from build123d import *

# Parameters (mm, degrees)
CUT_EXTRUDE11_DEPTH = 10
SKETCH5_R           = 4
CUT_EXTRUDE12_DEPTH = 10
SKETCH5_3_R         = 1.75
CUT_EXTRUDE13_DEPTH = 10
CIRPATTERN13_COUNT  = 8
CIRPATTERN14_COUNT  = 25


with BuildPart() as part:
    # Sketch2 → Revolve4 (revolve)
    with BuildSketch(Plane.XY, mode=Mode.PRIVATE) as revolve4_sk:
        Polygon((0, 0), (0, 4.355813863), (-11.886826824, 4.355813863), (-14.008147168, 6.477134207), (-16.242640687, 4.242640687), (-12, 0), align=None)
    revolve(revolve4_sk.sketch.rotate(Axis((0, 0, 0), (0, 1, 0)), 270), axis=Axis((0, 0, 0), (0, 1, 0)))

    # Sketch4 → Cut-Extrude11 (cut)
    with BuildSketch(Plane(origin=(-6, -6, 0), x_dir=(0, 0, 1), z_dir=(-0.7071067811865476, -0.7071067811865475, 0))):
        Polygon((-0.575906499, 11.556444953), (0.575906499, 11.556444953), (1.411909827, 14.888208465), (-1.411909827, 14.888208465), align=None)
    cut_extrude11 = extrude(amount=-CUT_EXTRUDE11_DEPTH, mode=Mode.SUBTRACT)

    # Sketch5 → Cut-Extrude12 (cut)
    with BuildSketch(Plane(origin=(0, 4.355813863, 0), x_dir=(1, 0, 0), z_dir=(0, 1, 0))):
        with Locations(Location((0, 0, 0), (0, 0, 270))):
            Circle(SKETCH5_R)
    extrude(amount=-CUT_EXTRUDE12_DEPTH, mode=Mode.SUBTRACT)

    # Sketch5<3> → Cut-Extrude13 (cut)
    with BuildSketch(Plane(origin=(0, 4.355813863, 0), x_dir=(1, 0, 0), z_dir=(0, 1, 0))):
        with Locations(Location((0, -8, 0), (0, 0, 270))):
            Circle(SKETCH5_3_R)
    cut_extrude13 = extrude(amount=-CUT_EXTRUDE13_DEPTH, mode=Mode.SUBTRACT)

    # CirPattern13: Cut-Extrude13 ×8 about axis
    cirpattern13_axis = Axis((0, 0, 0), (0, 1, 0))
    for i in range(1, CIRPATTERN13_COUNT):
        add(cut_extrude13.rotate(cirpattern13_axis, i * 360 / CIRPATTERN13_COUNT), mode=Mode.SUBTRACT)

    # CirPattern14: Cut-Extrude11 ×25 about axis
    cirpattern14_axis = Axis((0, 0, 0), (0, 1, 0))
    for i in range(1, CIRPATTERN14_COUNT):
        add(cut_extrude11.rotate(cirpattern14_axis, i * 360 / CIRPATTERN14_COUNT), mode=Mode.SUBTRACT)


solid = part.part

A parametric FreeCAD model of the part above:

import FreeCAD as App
import Part
import Sketcher
from FreeCAD import Vector
Q = App.Units.Quantity

doc = App.newDocument("Part")
params = doc.addObject("Spreadsheet::Sheet", "Params")
for row, (alias, value) in enumerate([
    ("sketch1_width", "12 mm"),
    ("sketch1_length", "3 mm"),
    ("sketch1_length2", "6 mm"),
    ("revolution_angle", "360 deg"),
    ("pocket1_length", "10 mm"),
    ("sketch3_diameter", "8 mm"),
    ("pocket2_length", "10 mm"),
    ("sketch4_diameter", "3.5 mm"),
    ("pocket3_length", "10 mm"),
], start=1):
    params.set(f"A{row}", alias)
    params.set(f"B{row}", "=" + value)
    params.setAlias(f"B{row}", alias)

body = doc.addObject("PartDesign::Body", "Body")

# Sketch on XY plane
sketch1 = doc.addObject("Sketcher::SketchObject", "Sketch")
body.addObject(sketch1)
sketch1.AttachmentSupport = (doc.XY_Plane, [""])
sketch1.MapMode = "FlatFace"
sketch1.addGeometry([
    Part.LineSegment(Vector(0, 0, 0), Vector(0, 4.4, 0)),  # 0
    Part.LineSegment(Vector(0, 4.4, 0), Vector(-11.9, 4.4, 0)),  # 1
    Part.LineSegment(Vector(-11.9, 4.4, 0), Vector(-14, 6.5, 0)),  # 2
    Part.LineSegment(Vector(-14, 6.5, 0), Vector(-16.2, 4.2, 0)),  # 3
    Part.LineSegment(Vector(-16.2, 4.2, 0), Vector(-12, 0, 0)),  # 4
    Part.LineSegment(Vector(-12, 0, 0), Vector(0, 0, 0)),  # 5
], False)
sketch1.addConstraint([
    Sketcher.Constraint("Coincident", 0, 2, 1, 1),
    Sketcher.Constraint("Coincident", 1, 2, 2, 1),
    Sketcher.Constraint("Coincident", 2, 2, 3, 1),
    Sketcher.Constraint("Coincident", 3, 2, 4, 1),
    Sketcher.Constraint("Coincident", 4, 2, 5, 1),
    Sketcher.Constraint("Coincident", 5, 2, 0, 1),
    Sketcher.Constraint("Vertical", 0),
    Sketcher.Constraint("Horizontal", 1),
    Sketcher.Constraint("Horizontal", 5),
    Sketcher.Constraint("Coincident", 5, 2, -1, 1),
    Sketcher.Constraint("Perpendicular", 2, 3),
    Sketcher.Constraint("Perpendicular", 3, 4),
    Sketcher.Constraint("DistanceX", 5, 1, 5, 2, 12.0),
    Sketcher.Constraint("Angle", 2, Q("135 deg")),
    Sketcher.Constraint("Distance", 2, 3.0),
    Sketcher.Constraint("Distance", 4, 6.0),
    Sketcher.Constraint("Distance", 3, 3.160051),
])
sketch1.setExpression("Constraints[12]", "Params.sketch1_width")
sketch1.setExpression("Constraints[14]", "Params.sketch1_length")
sketch1.setExpression("Constraints[15]", "Params.sketch1_length2")
revolution = doc.addObject("PartDesign::Revolution", "Revolution")
body.addObject(revolution)
revolution.Profile = sketch1
revolution.ReferenceAxis = (sketch1, ["V_Axis"])
revolution.setExpression("Angle", "Params.revolution_angle")

# Sketch on an angled plane
sketch2 = doc.addObject("Sketcher::SketchObject", "Sketch001")
body.addObject(sketch2)
sketch2.Placement = App.Placement(Vector(-6, -6, 0), App.Rotation(Vector(0, 0, 1), Vector(-0.707106781, 0.707106781, 0), Vector(-0.707106781, -0.707106781, 0), "ZXY"))
sketch2.addGeometry([
    Part.LineSegment(Vector(-0.6, 11.6, 0), Vector(0.6, 11.6, 0)),
    Part.LineSegment(Vector(0.6, 11.6, 0), Vector(1.4, 14.9, 0)),
    Part.LineSegment(Vector(1.4, 14.9, 0), Vector(-1.4, 14.9, 0)),
    Part.LineSegment(Vector(-1.4, 14.9, 0), Vector(-0.6, 11.6, 0)),
], False)
sketch2.addConstraint([
    Sketcher.Constraint("Coincident", 0, 2, 1, 1),
    Sketcher.Constraint("Coincident", 1, 2, 2, 1),
    Sketcher.Constraint("Coincident", 2, 2, 3, 1),
    Sketcher.Constraint("Coincident", 3, 2, 0, 1),
    Sketcher.Constraint("Horizontal", 0),
    Sketcher.Constraint("Horizontal", 2),
    Sketcher.Constraint("Equal", 1, 3),
    Sketcher.Constraint("DistanceX", 2, 2, 2, 1, 2.82382),
    Sketcher.Constraint("DistanceX", 0, 1, 0, 2, 1.151813),
    Sketcher.Constraint("DistanceX", -1, 1, 1, 2, 1.41191),
    Sketcher.Constraint("DistanceY", -1, 1, 1, 2, 14.888208),
    Sketcher.Constraint("Distance", 1, 3.435047),
])
pocket1 = doc.addObject("PartDesign::Pocket", "Pocket")
body.addObject(pocket1)
pocket1.Profile = sketch2
pocket1.setExpression("Length", "Params.pocket1_length")

# Sketch on XZ plane
sketch3 = doc.addObject("Sketcher::SketchObject", "Sketch002")
body.addObject(sketch3)
sketch3.AttachmentSupport = (doc.XZ_Plane, [""])
sketch3.MapMode = "FlatFace"
sketch3.AttachmentOffset = App.Placement(Vector(0, 0, -4.355814), App.Rotation())
sketch3.addGeometry(Part.Circle(Vector(0, 0, 0), Vector(0, 0, 1), 4), False)
sketch3.addConstraint([
    Sketcher.Constraint("Coincident", 0, 3, -1, 1),
    Sketcher.Constraint("Diameter", 0, 8.0),
])
sketch3.setExpression("Constraints[1]", "Params.sketch3_diameter")
pocket2 = doc.addObject("PartDesign::Pocket", "Pocket001")
body.addObject(pocket2)
pocket2.Profile = sketch3
pocket2.setExpression("Length", "Params.pocket2_length")
pocket2.Reversed = True

# Sketch on XZ plane
sketch4 = doc.addObject("Sketcher::SketchObject", "Sketch003")
body.addObject(sketch4)
sketch4.AttachmentSupport = (doc.XZ_Plane, [""])
sketch4.MapMode = "FlatFace"
sketch4.AttachmentOffset = App.Placement(Vector(0, 0, -4.355814), App.Rotation())
sketch4.addGeometry(Part.Circle(Vector(0, 8, 0), Vector(0, 0, 1), 1.8), False)
sketch4.addConstraint([
    Sketcher.Constraint("PointOnObject", 0, 3, -2),
    Sketcher.Constraint("Diameter", 0, 3.5),
    Sketcher.Constraint("DistanceY", -1, 1, 0, 3, 8.0),
])
sketch4.setExpression("Constraints[1]", "Params.sketch4_diameter")
pocket3 = doc.addObject("PartDesign::Pocket", "Pocket002")
body.addObject(pocket3)
pocket3.Profile = sketch4
pocket3.setExpression("Length", "Params.pocket3_length")
pocket3.Reversed = True
doc.recompute()

polarpattern = doc.addObject("PartDesign::PolarPattern", "PolarPattern")
body.addObject(polarpattern)
polarpattern.Originals = [pocket3]
polarpattern.Axis = (doc.Y_Axis, [""])
polarpattern.Angle = 360
polarpattern.Occurrences = 8
body.Tip = polarpattern
doc.recompute()

polarpattern2 = doc.addObject("PartDesign::PolarPattern", "PolarPattern001")
body.addObject(polarpattern2)
polarpattern2.Originals = [pocket1]
polarpattern2.Axis = (doc.Y_Axis, [""])
polarpattern2.Angle = 360
polarpattern2.Occurrences = 25
body.Tip = polarpattern2

doc.recompute()
